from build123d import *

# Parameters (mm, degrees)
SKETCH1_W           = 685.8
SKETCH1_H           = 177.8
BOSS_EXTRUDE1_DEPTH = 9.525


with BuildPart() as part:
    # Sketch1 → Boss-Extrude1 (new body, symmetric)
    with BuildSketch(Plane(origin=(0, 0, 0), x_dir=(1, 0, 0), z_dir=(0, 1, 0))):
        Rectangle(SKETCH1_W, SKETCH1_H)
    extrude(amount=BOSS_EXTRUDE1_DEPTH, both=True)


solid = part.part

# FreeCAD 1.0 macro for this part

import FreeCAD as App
import Part
import Sketcher
from FreeCAD import Vector
Q = App.Units.Quantity

doc = App.newDocument("Part")
body = doc.addObject("PartDesign::Body", "Body")

sketch1 = body.newObject("Sketcher::SketchObject", "Sketch")
sketch1.AttachmentSupport = (doc.getObject("XZ_Plane"), [""])
sketch1.MapMode = "FlatFace"
sketch1.addGeometry([
    Part.LineSegment(Vector(-343, -89, 0), Vector(-343, 89, 0)),
    Part.LineSegment(Vector(-343, 89, 0), Vector(343, 89, 0)),
    Part.LineSegment(Vector(343, 89, 0), Vector(343, -89, 0)),
    Part.LineSegment(Vector(343, -89, 0), Vector(-343, -89, 0)),
], False)
sketch1.addConstraint([
    Sketcher.Constraint("Coincident", 0, 2, 1, 1),
    Sketcher.Constraint("Coincident", 1, 2, 2, 1),
    Sketcher.Constraint("Coincident", 2, 2, 3, 1),
    Sketcher.Constraint("Coincident", 3, 2, 0, 1),
    Sketcher.Constraint("Vertical", 0),
    Sketcher.Constraint("Horizontal", 1),
    Sketcher.Constraint("Vertical", 2),
    Sketcher.Constraint("Horizontal", 3),
    Sketcher.Constraint("Symmetric", 0, 2, 2, 2, -1, 1),
    Sketcher.Constraint("DistanceX", 1, 1, 1, 2, Q("27 in")),
    Sketcher.Constraint("DistanceY", 0, 1, 0, 2, Q("7 in")),
])
pad1 = body.newObject("PartDesign::Pad", "Pad")
pad1.Profile = sketch1
pad1.Length = Q("0.75 in")
pad1.Midplane = True

doc.recompute()
